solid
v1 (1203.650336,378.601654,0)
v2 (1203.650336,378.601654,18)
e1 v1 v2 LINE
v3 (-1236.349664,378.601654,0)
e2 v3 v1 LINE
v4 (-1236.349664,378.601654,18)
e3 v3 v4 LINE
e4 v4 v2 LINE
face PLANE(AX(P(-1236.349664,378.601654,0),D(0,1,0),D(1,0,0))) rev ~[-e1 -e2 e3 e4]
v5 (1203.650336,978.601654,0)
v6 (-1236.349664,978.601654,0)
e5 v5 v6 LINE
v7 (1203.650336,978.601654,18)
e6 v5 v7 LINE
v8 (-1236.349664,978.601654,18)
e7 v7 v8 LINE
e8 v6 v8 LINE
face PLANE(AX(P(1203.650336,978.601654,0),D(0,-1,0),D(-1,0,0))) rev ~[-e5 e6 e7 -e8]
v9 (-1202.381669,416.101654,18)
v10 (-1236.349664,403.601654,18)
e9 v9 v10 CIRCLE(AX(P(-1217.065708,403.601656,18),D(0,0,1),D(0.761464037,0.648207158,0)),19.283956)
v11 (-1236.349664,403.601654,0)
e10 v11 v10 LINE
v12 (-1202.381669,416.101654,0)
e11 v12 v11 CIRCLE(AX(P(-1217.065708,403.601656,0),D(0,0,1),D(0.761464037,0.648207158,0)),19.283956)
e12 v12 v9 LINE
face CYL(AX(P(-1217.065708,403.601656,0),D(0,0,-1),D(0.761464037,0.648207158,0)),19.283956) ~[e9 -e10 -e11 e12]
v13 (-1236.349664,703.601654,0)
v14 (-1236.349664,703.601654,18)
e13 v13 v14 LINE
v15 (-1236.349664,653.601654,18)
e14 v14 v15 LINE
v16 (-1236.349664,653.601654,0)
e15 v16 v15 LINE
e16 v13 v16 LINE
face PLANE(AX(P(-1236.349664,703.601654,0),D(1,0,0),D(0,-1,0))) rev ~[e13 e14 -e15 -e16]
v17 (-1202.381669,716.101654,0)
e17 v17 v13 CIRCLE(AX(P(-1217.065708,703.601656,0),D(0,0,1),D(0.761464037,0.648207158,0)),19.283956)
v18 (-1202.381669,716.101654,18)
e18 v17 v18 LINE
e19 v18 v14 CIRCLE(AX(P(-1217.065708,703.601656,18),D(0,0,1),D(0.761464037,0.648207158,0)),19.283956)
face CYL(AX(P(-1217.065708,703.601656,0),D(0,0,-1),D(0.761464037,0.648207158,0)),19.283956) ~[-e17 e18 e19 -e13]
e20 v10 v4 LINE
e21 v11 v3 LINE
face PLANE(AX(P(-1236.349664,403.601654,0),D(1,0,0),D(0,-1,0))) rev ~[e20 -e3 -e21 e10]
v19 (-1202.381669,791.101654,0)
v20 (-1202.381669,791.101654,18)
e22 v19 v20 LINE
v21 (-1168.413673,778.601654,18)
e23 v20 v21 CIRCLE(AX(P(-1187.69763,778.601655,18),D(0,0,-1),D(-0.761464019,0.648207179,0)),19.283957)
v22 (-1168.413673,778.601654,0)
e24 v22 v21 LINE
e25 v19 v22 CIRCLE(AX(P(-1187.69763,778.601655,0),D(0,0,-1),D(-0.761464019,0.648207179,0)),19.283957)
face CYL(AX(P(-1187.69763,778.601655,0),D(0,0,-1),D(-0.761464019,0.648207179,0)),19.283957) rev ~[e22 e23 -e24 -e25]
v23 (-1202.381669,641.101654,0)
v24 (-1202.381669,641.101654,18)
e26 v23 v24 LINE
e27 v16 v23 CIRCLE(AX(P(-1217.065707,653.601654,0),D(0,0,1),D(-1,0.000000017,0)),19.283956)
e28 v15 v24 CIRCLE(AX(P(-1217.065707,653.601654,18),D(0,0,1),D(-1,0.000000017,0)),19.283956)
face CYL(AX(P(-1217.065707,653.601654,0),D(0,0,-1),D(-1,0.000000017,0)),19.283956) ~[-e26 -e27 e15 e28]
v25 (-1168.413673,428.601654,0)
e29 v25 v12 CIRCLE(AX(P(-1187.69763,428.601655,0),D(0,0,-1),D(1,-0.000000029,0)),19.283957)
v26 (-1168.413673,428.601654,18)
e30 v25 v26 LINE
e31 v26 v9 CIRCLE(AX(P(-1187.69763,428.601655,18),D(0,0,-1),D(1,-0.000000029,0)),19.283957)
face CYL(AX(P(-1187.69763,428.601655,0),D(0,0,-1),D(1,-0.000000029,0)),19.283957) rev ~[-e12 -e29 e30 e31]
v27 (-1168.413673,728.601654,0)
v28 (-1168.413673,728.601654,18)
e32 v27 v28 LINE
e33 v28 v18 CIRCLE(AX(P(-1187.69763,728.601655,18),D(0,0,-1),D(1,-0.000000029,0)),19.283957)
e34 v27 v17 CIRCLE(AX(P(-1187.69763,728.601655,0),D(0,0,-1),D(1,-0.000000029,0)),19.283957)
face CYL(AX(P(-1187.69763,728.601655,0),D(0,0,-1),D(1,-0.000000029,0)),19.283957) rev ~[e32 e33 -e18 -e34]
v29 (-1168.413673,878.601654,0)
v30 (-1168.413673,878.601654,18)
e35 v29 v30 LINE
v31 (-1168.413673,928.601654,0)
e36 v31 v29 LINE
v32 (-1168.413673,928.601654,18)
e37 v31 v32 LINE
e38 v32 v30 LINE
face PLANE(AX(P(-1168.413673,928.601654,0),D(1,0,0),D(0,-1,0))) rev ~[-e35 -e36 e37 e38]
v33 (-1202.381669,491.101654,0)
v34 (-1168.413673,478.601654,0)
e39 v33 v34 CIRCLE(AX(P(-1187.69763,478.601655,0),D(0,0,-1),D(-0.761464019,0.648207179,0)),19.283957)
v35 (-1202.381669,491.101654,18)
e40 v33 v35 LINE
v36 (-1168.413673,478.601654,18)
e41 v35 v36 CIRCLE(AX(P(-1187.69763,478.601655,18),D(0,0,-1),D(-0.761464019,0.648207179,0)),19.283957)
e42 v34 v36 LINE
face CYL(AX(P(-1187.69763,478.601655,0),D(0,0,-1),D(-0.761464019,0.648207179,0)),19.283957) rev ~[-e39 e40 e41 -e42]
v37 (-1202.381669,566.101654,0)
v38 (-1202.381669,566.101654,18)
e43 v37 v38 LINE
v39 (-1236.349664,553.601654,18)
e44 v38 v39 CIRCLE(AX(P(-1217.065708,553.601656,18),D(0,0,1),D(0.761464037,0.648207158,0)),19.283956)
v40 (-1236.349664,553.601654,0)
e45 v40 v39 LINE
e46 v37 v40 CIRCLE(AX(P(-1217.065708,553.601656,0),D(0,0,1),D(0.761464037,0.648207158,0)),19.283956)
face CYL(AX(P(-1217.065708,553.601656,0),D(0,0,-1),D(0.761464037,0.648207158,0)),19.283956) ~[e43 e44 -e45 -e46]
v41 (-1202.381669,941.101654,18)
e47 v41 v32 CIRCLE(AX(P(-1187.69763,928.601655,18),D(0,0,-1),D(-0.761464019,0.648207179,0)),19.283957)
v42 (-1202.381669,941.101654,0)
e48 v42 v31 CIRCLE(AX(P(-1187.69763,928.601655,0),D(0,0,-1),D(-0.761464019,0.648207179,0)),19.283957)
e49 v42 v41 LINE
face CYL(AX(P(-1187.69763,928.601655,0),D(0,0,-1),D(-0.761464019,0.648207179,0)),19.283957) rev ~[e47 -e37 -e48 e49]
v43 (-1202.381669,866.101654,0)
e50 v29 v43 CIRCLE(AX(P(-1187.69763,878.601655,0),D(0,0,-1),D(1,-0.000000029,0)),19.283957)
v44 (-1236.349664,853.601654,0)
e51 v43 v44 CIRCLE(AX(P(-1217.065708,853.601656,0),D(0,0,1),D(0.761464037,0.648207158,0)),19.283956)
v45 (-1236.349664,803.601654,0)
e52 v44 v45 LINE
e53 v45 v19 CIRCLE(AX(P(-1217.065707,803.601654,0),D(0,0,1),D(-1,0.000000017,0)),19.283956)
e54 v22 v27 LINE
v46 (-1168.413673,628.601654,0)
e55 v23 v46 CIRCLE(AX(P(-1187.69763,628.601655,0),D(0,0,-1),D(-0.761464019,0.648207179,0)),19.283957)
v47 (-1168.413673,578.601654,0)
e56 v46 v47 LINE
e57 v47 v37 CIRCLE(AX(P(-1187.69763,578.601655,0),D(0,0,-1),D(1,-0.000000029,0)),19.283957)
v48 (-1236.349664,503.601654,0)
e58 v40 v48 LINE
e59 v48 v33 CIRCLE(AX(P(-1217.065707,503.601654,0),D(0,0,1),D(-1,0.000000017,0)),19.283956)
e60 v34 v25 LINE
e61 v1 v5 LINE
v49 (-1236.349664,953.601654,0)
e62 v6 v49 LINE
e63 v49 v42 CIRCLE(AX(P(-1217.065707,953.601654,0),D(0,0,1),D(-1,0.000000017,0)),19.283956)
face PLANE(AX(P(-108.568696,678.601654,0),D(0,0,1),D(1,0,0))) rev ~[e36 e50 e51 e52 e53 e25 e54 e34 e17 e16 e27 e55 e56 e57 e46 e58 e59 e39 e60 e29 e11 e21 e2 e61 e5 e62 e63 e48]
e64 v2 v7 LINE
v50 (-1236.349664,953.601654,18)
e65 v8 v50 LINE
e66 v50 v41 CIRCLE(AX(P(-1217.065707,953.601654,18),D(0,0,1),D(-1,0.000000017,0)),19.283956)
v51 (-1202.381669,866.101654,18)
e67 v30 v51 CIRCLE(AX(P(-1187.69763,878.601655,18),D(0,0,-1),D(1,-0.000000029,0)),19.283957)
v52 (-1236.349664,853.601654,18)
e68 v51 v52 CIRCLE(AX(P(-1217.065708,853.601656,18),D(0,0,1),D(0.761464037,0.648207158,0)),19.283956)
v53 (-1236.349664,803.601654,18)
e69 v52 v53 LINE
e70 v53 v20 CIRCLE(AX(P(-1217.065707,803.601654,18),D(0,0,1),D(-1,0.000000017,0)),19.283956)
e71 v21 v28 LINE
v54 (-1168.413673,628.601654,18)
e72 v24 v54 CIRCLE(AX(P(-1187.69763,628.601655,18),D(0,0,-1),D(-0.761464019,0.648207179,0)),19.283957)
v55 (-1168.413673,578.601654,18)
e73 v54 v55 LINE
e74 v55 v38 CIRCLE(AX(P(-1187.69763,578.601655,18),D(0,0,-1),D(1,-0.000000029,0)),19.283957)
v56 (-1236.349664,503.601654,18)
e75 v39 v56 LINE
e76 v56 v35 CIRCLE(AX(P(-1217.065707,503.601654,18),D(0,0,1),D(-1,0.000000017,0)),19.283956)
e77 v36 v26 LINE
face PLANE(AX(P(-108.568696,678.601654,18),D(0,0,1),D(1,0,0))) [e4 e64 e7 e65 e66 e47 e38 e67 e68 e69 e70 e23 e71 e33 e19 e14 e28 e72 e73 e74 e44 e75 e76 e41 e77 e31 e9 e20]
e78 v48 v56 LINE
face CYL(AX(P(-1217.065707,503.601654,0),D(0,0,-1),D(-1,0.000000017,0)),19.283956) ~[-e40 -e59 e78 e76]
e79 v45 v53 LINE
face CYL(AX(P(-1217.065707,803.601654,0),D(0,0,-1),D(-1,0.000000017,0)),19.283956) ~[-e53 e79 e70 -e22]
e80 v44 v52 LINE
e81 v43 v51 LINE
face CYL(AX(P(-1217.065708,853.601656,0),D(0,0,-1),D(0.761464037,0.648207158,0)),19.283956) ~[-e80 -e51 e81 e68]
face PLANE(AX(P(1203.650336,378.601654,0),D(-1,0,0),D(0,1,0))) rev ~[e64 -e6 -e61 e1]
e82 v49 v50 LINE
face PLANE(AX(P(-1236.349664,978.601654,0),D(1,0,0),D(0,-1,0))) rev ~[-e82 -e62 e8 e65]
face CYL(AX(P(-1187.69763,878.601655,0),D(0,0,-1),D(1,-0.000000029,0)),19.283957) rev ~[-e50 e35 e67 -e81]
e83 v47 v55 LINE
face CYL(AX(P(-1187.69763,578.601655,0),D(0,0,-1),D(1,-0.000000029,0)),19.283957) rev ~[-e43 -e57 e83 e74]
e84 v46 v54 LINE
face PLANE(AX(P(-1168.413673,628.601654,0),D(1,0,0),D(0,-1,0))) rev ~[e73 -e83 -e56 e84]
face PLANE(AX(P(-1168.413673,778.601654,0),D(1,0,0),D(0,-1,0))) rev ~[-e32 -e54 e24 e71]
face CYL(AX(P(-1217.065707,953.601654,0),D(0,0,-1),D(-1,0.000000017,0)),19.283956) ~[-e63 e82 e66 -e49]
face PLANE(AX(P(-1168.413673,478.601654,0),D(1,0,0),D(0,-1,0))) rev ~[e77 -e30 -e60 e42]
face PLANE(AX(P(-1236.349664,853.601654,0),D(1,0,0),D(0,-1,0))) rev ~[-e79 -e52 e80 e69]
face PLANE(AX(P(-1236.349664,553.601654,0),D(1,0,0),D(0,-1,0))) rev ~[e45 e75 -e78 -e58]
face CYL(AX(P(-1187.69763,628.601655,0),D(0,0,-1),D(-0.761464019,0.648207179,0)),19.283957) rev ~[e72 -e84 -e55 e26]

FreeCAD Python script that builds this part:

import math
import FreeCAD as App
import Part
import Sketcher
from FreeCAD import Vector

doc = App.newDocument("Part")
body = doc.addObject("PartDesign::Body", "Body")

# Sketch on XY plane
sketch1 = doc.addObject("Sketcher::SketchObject", "Sketch")
body.addObject(sketch1)
sketch1.AttachmentSupport = (doc.XY_Plane, [""])
sketch1.MapMode = "FlatFace"
sketch1.addGeometry([
    Part.LineSegment(Vector(1204, 979, 0), Vector(-1236, 979, 0)),  # 0
    Part.LineSegment(Vector(-1236, 979, 0), Vector(-1236, 954, 0)),  # 1
    Part.ArcOfCircle(Part.Circle(Vector(-1217, 954, 0), Vector(0, 0, 1), 19), math.radians(180), math.radians(320)),  # 2
    Part.ArcOfCircle(Part.Circle(Vector(-1188, 929, 0), Vector(0, 0, 1), 19), math.radians(0), math.radians(140)),  # 3
    Part.LineSegment(Vector(-1168, 929, 0), Vector(-1168, 879, 0)),  # 4
    Part.ArcOfCircle(Part.Circle(Vector(-1188, 879, 0), Vector(0, 0, 1), 19), math.radians(-140), math.radians(0)),  # 5
    Part.ArcOfCircle(Part.Circle(Vector(-1217, 854, 0), Vector(0, 0, 1), 19), math.radians(40), math.radians(180)),  # 6
    Part.LineSegment(Vector(-1236, 854, 0), Vector(-1236, 804, 0)),  # 7
    Part.ArcOfCircle(Part.Circle(Vector(-1217, 804, 0), Vector(0, 0, 1), 19), math.radians(180), math.radians(320)),  # 8
    Part.ArcOfCircle(Part.Circle(Vector(-1188, 779, 0), Vector(0, 0, 1), 19), math.radians(0), math.radians(140)),  # 9
    Part.LineSegment(Vector(-1168, 779, 0), Vector(-1168, 729, 0)),  # 10
    Part.ArcOfCircle(Part.Circle(Vector(-1188, 729, 0), Vector(0, 0, 1), 19), math.radians(-140), math.radians(0)),  # 11
    Part.ArcOfCircle(Part.Circle(Vector(-1217, 704, 0), Vector(0, 0, 1), 19), math.radians(40), math.radians(180)),  # 12
    Part.LineSegment(Vector(-1236, 704, 0), Vector(-1236, 654, 0)),  # 13
    Part.ArcOfCircle(Part.Circle(Vector(-1217, 654, 0), Vector(0, 0, 1), 19), math.radians(180), math.radians(320)),  # 14
    Part.ArcOfCircle(Part.Circle(Vector(-1188, 629, 0), Vector(0, 0, 1), 19), math.radians(0), math.radians(140)),  # 15
    Part.LineSegment(Vector(-1168, 629, 0), Vector(-1168, 579, 0)),  # 16
    Part.ArcOfCircle(Part.Circle(Vector(-1188, 579, 0), Vector(0, 0, 1), 19), math.radians(-140), math.radians(0)),  # 17
    Part.ArcOfCircle(Part.Circle(Vector(-1217, 554, 0), Vector(0, 0, 1), 19), math.radians(40), math.radians(180)),  # 18
    Part.LineSegment(Vector(-1236, 554, 0), Vector(-1236, 504, 0)),  # 19
    Part.ArcOfCircle(Part.Circle(Vector(-1217, 504, 0), Vector(0, 0, 1), 19), math.radians(180), math.radians(320)),  # 20
    Part.ArcOfCircle(Part.Circle(Vector(-1188, 479, 0), Vector(0, 0, 1), 19), math.radians(0), math.radians(140)),  # 21
    Part.LineSegment(Vector(-1168, 479, 0), Vector(-1168, 429, 0)),  # 22
    Part.ArcOfCircle(Part.Circle(Vector(-1188, 429, 0), Vector(0, 0, 1), 19), math.radians(-140), math.radians(0)),  # 23
    Part.ArcOfCircle(Part.Circle(Vector(-1217, 404, 0), Vector(0, 0, 1), 19), math.radians(40), math.radians(180)),  # 24
    Part.LineSegment(Vector(-1236, 404, 0), Vector(-1236, 379, 0)),  # 25
    Part.LineSegment(Vector(-1236, 379, 0), Vector(1204, 379, 0)),  # 26
    Part.LineSegment(Vector(1204, 379, 0), Vector(1204, 979, 0)),  # 27
], False)
sketch1.addConstraint([
    Sketcher.Constraint("Coincident", 0, 2, 1, 1),
    Sketcher.Constraint("Tangent", 1, 2, 2, 1),
    Sketcher.Constraint("Tangent", 2, 2, 3, 2),
    Sketcher.Constraint("Tangent", 3, 1, 4, 1),
    Sketcher.Constraint("Tangent", 4, 2, 5, 2),
    Sketcher.Constraint("Tangent", 5, 1, 6, 1),
    Sketcher.Constraint("Tangent", 6, 2, 7, 1),
    Sketcher.Constraint("Tangent", 7, 2, 8, 1),
    Sketcher.Constraint("Tangent", 8, 2, 9, 2),
    Sketcher.Constraint("Tangent", 9, 1, 10, 1),
    Sketcher.Constraint("Tangent", 10, 2, 11, 2),
    Sketcher.Constraint("Tangent", 11, 1, 12, 1),
    Sketcher.Constraint("Tangent", 12, 2, 13, 1),
    Sketcher.Constraint("Tangent", 13, 2, 14, 1),
    Sketcher.Constraint("Tangent", 14, 2, 15, 2),
    Sketcher.Constraint("Tangent", 15, 1, 16, 1),
    Sketcher.Constraint("Tangent", 16, 2, 17, 2),
    Sketcher.Constraint("Tangent", 17, 1, 18, 1),
    Sketcher.Constraint("Tangent", 18, 2, 19, 1),
    Sketcher.Constraint("Tangent", 19, 2, 20, 1),
    Sketcher.Constraint("Tangent", 20, 2, 21, 2),
    Sketcher.Constraint("Tangent", 21, 1, 22, 1),
    Sketcher.Constraint("Tangent", 22, 2, 23, 2),
    Sketcher.Constraint("Tangent", 23, 1, 24, 1),
    Sketcher.Constraint("Tangent", 24, 2, 25, 1),
    Sketcher.Constraint("Coincident", 25, 2, 26, 1),
    Sketcher.Constraint("Coincident", 26, 2, 27, 1),
    Sketcher.Constraint("Coincident", 27, 2, 0, 1),
    Sketcher.Constraint("Horizontal", 0),
    Sketcher.Constraint("Vertical", 1),
    Sketcher.Constraint("Vertical", 4),
    Sketcher.Constraint("Vertical", 7),
    Sketcher.Constraint("Vertical", 10),
    Sketcher.Constraint("Vertical", 13),
    Sketcher.Constraint("Vertical", 16),
    Sketcher.Constraint("Vertical", 19),
    Sketcher.Constraint("Vertical", 22),
    Sketcher.Constraint("Vertical", 25),
    Sketcher.Constraint("Horizontal", 26),
    Sketcher.Constraint("Vertical", 27),
    Sketcher.Constraint("Equal", 2, 3),
    Sketcher.Constraint("Equal", 3, 5),
    Sketcher.Constraint("Equal", 5, 6),
    Sketcher.Constraint("Equal", 6, 8),
    Sketcher.Constraint("Equal", 8, 9),
    Sketcher.Constraint("Equal", 9, 11),
    Sketcher.Constraint("Equal", 11, 12),
    Sketcher.Constraint("Equal", 12, 14),
    Sketcher.Constraint("Equal", 14, 15),
    Sketcher.Constraint("Equal", 15, 17),
    Sketcher.Constraint("Equal", 17, 18),
    Sketcher.Constraint("Equal", 18, 20),
    Sketcher.Constraint("Equal", 20, 21),
    Sketcher.Constraint("Equal", 21, 23),
    Sketcher.Constraint("Equal", 23, 24),
    Sketcher.Constraint("Vertical", 2, 3, 6, 3),
    Sketcher.Constraint("Vertical", 5, 3, 9, 3),
    Sketcher.Constraint("Vertical", 8, 3, 12, 3),
    Sketcher.Constraint("Vertical", 11, 3, 15, 3),
    Sketcher.Constraint("Vertical", 14, 3, 18, 3),
    Sketcher.Constraint("Vertical", 17, 3, 21, 3),
    Sketcher.Constraint("Vertical", 20, 3, 24, 3),
    Sketcher.Constraint("Equal", 4, 7),
    Sketcher.Constraint("Equal", 7, 10),
    Sketcher.Constraint("Equal", 10, 13),
    Sketcher.Constraint("Equal", 13, 16),
    Sketcher.Constraint("Equal", 16, 19),
    Sketcher.Constraint("Equal", 19, 22),
    Sketcher.Constraint("Equal", 1, 25),
    Sketcher.Constraint("DistanceX", 0, 2, 0, 1, 2440.0),
    Sketcher.Constraint("DistanceY", 1, 2, 1, 1, 25.0),
    Sketcher.Constraint("DistanceY", 4, 2, 4, 1, 50.0),
    Sketcher.Constraint("DistanceY", 27, 1, 27, 2, 600.0),
    Sketcher.Constraint("Radius", 2, 19.283956),
    Sketcher.Constraint("DistanceX", 3, 3, -1, 1, 1187.69763),
    Sketcher.Constraint("DistanceY", -1, 1, 2, 3, 953.601654),
])
pad1 = doc.addObject("PartDesign::Pad", "Pad")
body.addObject(pad1)
pad1.Profile = sketch1
pad1.Length = 18

doc.recompute()
